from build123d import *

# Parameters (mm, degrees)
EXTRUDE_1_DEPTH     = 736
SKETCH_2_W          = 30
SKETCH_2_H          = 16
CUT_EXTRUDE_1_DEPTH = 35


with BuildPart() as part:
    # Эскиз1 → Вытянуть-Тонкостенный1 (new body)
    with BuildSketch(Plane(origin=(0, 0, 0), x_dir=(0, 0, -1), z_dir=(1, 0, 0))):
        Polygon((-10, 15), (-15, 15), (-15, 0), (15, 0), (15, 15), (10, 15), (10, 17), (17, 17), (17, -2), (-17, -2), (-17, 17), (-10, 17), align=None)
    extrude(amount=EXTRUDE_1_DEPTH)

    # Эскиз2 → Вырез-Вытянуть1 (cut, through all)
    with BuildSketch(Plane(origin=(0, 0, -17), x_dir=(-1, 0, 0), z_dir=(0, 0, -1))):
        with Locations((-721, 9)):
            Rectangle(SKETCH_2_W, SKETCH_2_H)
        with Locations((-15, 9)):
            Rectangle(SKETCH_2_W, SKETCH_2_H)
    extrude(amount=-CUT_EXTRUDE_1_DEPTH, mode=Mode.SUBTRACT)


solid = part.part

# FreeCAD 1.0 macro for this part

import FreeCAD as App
import Part
import Sketcher

V = App.Vector


def add_polygon(sketch, points):
    """Adds a closed chain of lines whose ends are joined by coincident constraints."""
    first, n = sketch.GeometryCount, len(points)
    for a, b in zip(points, points[1:] + points[:1]):
        sketch.addGeometry(Part.LineSegment(App.Vector(*a, 0), App.Vector(*b, 0)), False)
    for i in range(n):
        sketch.addConstraint(Sketcher.Constraint("Coincident", first + i, 2, first + (i + 1) % n, 1))

doc = App.newDocument("Part")
body = doc.addObject("PartDesign::Body", "Body")

sketch1 = body.newObject("Sketcher::SketchObject", "Sketch")
sketch1.AttachmentSupport = (doc.getObject("YZ_Plane"), [""])
sketch1.MapMode = "FlatFace"
add_polygon(sketch1, [(15, 15), (15, 10), (17, 10), (17, 17), (-2, 17), (-2, -17), (17, -17), (17, -10), (15, -10), (15, -15), (0, -15), (0, 15)])
sketch1.addConstraint([
    Sketcher.Constraint("Vertical", 0),
    Sketcher.Constraint("Horizontal", 1),
    Sketcher.Constraint("Vertical", 2),
    Sketcher.Constraint("Horizontal", 3),
    Sketcher.Constraint("Vertical", 4),
    Sketcher.Constraint("Horizontal", 5),
    Sketcher.Constraint("Vertical", 6),
    Sketcher.Constraint("Horizontal", 7),
    Sketcher.Constraint("Vertical", 8),
    Sketcher.Constraint("Horizontal", 9),
    Sketcher.Constraint("Vertical", 10),
    Sketcher.Constraint("Horizontal", 11),
    Sketcher.Constraint("Symmetric", 9, 2, 10, 2, -1, 1),
    Sketcher.Constraint("Symmetric", 2, 2, 5, 2, -1),
    Sketcher.Constraint("Symmetric", 0, 2, 7, 2, -1),
    Sketcher.Constraint("DistanceX", 1, 1, 1, 2, 2.0),
    Sketcher.Constraint("DistanceX", 3, 2, 3, 1, 19.0),
    Sketcher.Constraint("DistanceX", 9, 2, 9, 1, 15.0),
    Sketcher.Constraint("DistanceY", 0, 2, 0, 1, 5.0),
    Sketcher.Constraint("DistanceY", 2, 1, 2, 2, 7.0),
    Sketcher.Constraint("DistanceY", 4, 2, 4, 1, 34.0),
])
pad1 = body.newObject("PartDesign::Pad", "Pad")
pad1.Profile = sketch1
pad1.Length = 736

sketch2 = body.newObject("Sketcher::SketchObject", "Sketch001")
sketch2.AttachmentSupport = (doc.getObject("XY_Plane"), [""])
sketch2.MapMode = "FlatFace"
sketch2.AttachmentOffset = App.Placement(V(0, 0, -17), App.Rotation())
add_polygon(sketch2, [(736, 17), (736, 1), (706, 1), (706, 17)])
add_polygon(sketch2, [(30, 17), (30, 1), (0, 1), (0, 17)])
sketch2.addConstraint([
    Sketcher.Constraint("Vertical", 0),
    Sketcher.Constraint("Horizontal", 1),
    Sketcher.Constraint("Vertical", 2),
    Sketcher.Constraint("Horizontal", 3),
    Sketcher.Constraint("Vertical", 4),
    Sketcher.Constraint("Horizontal", 5),
    Sketcher.Constraint("Vertical", 6),
    Sketcher.Constraint("Horizontal", 7),
    Sketcher.Constraint("PointOnObject", 5, 2, -2),
    Sketcher.Constraint("Horizontal", 1, 2, 4, 2),
    Sketcher.Constraint("Horizontal", 3, 2, 6, 2),
    Sketcher.Constraint("Equal", 3, 5),
    Sketcher.Constraint("DistanceX", 1, 2, 1, 1, 30.0),
    Sketcher.Constraint("DistanceY", 0, 2, 0, 1, 16.0),
    Sketcher.Constraint("DistanceX", -1, 1, 0, 2, 736.0),
    Sketcher.Constraint("DistanceY", -1, 1, 0, 2, 1.0),
])
pocket1 = body.newObject("PartDesign::Pocket", "Pocket")
pocket1.Profile = sketch2
pocket1.Type = "ThroughAll"
pocket1.Reversed = True

doc.recompute()
